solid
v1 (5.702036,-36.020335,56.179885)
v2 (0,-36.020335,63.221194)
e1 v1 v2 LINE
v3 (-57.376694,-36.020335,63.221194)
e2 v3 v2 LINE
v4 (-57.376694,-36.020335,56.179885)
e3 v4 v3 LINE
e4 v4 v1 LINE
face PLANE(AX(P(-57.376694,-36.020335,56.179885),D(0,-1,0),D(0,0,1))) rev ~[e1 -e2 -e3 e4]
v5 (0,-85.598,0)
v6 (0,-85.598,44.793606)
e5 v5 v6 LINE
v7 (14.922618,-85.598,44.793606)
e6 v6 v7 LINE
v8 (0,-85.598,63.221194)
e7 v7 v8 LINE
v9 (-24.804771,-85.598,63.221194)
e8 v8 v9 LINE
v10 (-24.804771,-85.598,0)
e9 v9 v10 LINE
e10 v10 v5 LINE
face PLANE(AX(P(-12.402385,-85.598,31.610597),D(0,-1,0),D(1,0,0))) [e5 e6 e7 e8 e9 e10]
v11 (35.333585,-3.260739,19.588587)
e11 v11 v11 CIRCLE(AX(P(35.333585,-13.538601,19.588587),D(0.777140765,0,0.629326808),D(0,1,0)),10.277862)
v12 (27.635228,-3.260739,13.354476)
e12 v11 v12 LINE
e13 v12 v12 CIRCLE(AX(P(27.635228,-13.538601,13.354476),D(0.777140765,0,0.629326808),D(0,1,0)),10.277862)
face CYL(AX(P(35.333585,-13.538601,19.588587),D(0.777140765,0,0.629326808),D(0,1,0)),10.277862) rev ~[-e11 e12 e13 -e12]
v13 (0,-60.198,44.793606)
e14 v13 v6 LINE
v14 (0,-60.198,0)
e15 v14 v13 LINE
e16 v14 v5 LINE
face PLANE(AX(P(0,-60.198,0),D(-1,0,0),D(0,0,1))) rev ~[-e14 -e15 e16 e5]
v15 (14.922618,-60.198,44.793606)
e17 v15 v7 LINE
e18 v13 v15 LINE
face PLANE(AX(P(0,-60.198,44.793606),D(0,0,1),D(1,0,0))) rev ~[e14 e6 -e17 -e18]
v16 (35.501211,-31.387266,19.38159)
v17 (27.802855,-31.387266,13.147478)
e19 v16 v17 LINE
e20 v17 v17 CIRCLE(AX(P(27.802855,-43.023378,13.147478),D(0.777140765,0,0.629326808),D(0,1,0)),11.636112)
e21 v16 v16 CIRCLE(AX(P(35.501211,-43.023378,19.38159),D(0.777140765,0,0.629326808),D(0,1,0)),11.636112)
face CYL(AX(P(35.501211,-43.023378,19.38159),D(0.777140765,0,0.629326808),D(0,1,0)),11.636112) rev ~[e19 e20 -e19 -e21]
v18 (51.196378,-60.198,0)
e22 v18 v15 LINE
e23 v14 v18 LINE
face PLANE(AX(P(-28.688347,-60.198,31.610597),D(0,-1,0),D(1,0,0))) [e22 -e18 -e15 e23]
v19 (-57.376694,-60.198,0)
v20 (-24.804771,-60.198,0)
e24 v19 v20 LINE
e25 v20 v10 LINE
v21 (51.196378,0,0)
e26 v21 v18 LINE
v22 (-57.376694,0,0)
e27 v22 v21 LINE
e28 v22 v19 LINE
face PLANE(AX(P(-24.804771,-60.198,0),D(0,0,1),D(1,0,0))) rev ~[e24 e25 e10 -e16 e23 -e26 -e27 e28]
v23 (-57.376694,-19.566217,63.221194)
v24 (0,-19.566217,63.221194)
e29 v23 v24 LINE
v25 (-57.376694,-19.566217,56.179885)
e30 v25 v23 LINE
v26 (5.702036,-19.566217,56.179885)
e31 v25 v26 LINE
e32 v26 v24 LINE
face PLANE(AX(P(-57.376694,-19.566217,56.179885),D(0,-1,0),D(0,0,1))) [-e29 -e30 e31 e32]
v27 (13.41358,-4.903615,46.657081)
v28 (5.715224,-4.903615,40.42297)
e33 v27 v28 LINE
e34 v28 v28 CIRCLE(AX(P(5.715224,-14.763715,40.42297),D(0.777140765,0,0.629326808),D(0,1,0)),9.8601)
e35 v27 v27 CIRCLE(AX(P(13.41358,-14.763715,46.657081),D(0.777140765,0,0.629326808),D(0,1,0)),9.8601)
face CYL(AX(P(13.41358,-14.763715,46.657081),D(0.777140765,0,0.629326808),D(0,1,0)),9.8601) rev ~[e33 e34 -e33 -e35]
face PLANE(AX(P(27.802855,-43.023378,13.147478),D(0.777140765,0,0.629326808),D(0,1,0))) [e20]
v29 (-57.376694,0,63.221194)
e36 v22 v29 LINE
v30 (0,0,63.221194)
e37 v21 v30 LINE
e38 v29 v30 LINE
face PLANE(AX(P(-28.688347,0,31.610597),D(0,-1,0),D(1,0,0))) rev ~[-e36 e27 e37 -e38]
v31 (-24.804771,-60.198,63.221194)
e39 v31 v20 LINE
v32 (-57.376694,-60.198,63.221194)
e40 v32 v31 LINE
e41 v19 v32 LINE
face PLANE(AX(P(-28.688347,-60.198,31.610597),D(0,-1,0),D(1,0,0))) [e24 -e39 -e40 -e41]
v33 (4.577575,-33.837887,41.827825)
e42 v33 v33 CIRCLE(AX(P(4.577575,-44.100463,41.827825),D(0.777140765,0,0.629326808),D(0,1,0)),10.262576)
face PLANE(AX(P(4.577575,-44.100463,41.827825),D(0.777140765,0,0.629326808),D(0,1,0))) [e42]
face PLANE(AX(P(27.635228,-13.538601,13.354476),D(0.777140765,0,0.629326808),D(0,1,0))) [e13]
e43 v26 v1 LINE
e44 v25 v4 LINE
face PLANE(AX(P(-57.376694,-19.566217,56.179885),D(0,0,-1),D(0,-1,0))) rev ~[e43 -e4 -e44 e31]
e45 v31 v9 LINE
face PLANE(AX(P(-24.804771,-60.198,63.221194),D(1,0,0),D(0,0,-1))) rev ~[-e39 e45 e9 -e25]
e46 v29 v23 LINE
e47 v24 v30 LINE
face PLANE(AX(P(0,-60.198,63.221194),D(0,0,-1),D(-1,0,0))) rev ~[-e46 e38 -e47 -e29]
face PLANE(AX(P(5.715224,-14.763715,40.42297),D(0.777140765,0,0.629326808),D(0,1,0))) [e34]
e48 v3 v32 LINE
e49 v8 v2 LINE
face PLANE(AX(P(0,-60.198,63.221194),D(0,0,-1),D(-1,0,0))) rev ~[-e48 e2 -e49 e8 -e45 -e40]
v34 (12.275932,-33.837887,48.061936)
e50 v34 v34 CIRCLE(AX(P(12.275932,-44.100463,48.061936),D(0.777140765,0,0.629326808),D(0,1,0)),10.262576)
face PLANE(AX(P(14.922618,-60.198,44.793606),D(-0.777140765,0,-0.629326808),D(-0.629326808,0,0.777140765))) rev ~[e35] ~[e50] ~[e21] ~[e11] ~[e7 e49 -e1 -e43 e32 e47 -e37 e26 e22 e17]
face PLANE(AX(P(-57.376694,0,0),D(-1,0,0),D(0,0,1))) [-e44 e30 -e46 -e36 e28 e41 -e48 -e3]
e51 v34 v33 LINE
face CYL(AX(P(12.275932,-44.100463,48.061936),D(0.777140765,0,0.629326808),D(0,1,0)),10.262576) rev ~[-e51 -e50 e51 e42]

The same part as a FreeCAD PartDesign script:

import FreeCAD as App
import Part
import Sketcher
Q = App.Units.Quantity


def add_polygon(sketch, points):
    """Adds a closed chain of lines whose ends are joined by coincident constraints."""
    first, n = sketch.GeometryCount, len(points)
    for a, b in zip(points, points[1:] + points[:1]):
        sketch.addGeometry(Part.LineSegment(App.Vector(*a, 0), App.Vector(*b, 0)), False)
    for i in range(n):
        sketch.addConstraint(Sketcher.Constraint("Coincident", first + i, 2, first + (i + 1) % n, 1))

doc = App.newDocument("Part")
params = doc.addObject("Spreadsheet::Sheet", "Params")
for row, (alias, value) in enumerate([
    ("pad1_length", "2.37 in"),
    ("pocket1_length", "0.39 in"),
    ("pad2_length", "1 in"),
    ("pocket2_length", "8.2 in"),
], start=1):
    params.set(f"A{row}", alias)
    params.set(f"B{row}", "=" + value)
    params.setAlias(f"B{row}", alias)

body = doc.addObject("PartDesign::Body", "Body")

sketch1 = doc.addObject("Sketcher::SketchObject", "Sketch")
body.addObject(sketch1)
sketch1.AttachmentSupport = (doc.XZ_Plane, [""])
sketch1.MapMode = "FlatFace"
add_polygon(sketch1, [(-57, 63), (-57, 0), (51, 0), (0, 63)])
sketch1.addConstraint([
    Sketcher.Constraint("Vertical", 0),
    Sketcher.Constraint("Horizontal", 1),
    Sketcher.Constraint("Horizontal", 3),
    Sketcher.Constraint("PointOnObject", 0, 2, -1),
    Sketcher.Constraint("PointOnObject", 2, 2, -2),
    Sketcher.Constraint("DistanceX", 1, 1, 1, 2, Q("108.573072 mm")),
    Sketcher.Constraint("Distance", 2, Q("81.35102 mm")),
    Sketcher.Constraint("DistanceX", 3, 2, 3, 1, Q("57.376694 mm")),
])
pad1 = doc.addObject("PartDesign::Pad", "Pad")
body.addObject(pad1)
pad1.Profile = sketch1
pad1.setExpression("Length", "Params.pad1_length")

sketch2 = doc.addObject("Sketcher::SketchObject", "Sketch001")
body.addObject(sketch2)
sketch2.Placement = App.Placement(App.Vector(30.919938, 0, 25.038895), App.Rotation(App.Vector(0, 1, 0), App.Vector(-0.629326808, 0, 0.777140765), App.Vector(0.777140765, 0, 0.629326808), "ZXY"))
sketch2.addGeometry([
    Part.Circle(App.Vector(-44, 30, 0), App.Vector(0, 0, 1), 10),
    Part.Circle(App.Vector(-15, 28, 0), App.Vector(0, 0, 1), 10),
    Part.Circle(App.Vector(-14, -7, 0), App.Vector(0, 0, 1), 10),
    Part.Circle(App.Vector(-43, -7, 0), App.Vector(0, 0, 1), 12),
], False)
sketch2.addConstraint([
    Sketcher.Constraint("Diameter", 1, Q("19.720199 mm")),
    Sketcher.Constraint("Diameter", 0, Q("20.525153 mm")),
    Sketcher.Constraint("Diameter", 2, Q("20.555723 mm")),
    Sketcher.Constraint("Diameter", 3, Q("23.272224 mm")),
    Sketcher.Constraint("DistanceY", 3, 3, -1, 1, Q("0.2866 in")),
    Sketcher.Constraint("DistanceX", 2, 3, -1, 1, Q("13.538601 mm")),
    Sketcher.Constraint("DistanceY", 2, 3, 0, 3, Q("36.638599 mm")),
    Sketcher.Constraint("DistanceX", 0, 3, 1, 3, Q("29.336749 mm")),
    Sketcher.Constraint("DistanceY", 3, 3, 2, 3, Q("0.266358 mm")),
    Sketcher.Constraint("DistanceX", 0, 3, -1, 1, Q("44.100463 mm")),
    Sketcher.Constraint("DistanceY", -1, 1, 1, 3, Q("27.817594 mm")),
    Sketcher.Constraint("DistanceX", 3, 3, -1, 1, Q("43.023378 mm")),
])
pocket1 = doc.addObject("PartDesign::Pocket", "Pocket")
body.addObject(pocket1)
pocket1.Profile = sketch2
pocket1.setExpression("Length", "Params.pocket1_length")

sketch3 = doc.addObject("Sketcher::SketchObject", "Sketch002")
body.addObject(sketch3)
sketch3.AttachmentSupport = (doc.XZ_Plane, [""])
sketch3.MapMode = "FlatFace"
sketch3.AttachmentOffset = App.Placement(App.Vector(0, 0, 2.37 * 25.4), App.Rotation())
add_polygon(sketch3, [(0, 63), (-25, 63), (-25, 0), (0, 0), (0, 45), (15, 45)])
sketch3.addConstraint([
    Sketcher.Constraint("Horizontal", 0),
    Sketcher.Constraint("Vertical", 1),
    Sketcher.Constraint("Horizontal", 2),
    Sketcher.Constraint("Vertical", 3),
    Sketcher.Constraint("Horizontal", 4),
    Sketcher.Constraint("Coincident", 2, 2, -1, 1),
    Sketcher.Constraint("PointOnObject", 5, 2, -2),
    Sketcher.Constraint("DistanceX", 0, 2, 0, 1, Q("24.804771 mm")),
    Sketcher.Constraint("DistanceX", 4, 1, 4, 2, Q("14.922618 mm")),
    Sketcher.Constraint("DistanceY", 1, 2, 1, 1, Q("63.221194 mm")),
    Sketcher.Constraint("DistanceY", 3, 1, 3, 2, Q("44.793606 mm")),
])
pad2 = doc.addObject("PartDesign::Pad", "Pad001")
body.addObject(pad2)
pad2.Profile = sketch3
pad2.setExpression("Length", "Params.pad2_length")

sketch4 = doc.addObject("Sketcher::SketchObject", "Sketch003")
body.addObject(sketch4)
sketch4.AttachmentSupport = (doc.YZ_Plane, [""])
sketch4.MapMode = "FlatFace"
sketch4.AttachmentOffset = App.Placement(App.Vector(0, 0, -57.376694), App.Rotation())
add_polygon(sketch4, [(-20, 63), (-20, 56), (-36, 56), (-36, 63)])
sketch4.addConstraint([
    Sketcher.Constraint("Vertical", 0),
    Sketcher.Constraint("Horizontal", 1),
    Sketcher.Constraint("Vertical", 2),
    Sketcher.Constraint("Horizontal", 3),
    Sketcher.Constraint("DistanceX", 1, 2, 1, 1, Q("0.6477999 in")),
    Sketcher.Constraint("DistanceY", 0, 2, 0, 1, Q("7.041309 mm")),
    Sketcher.Constraint("DistanceX", 0, 2, -1, 1, Q("19.566217 mm")),
    Sketcher.Constraint("DistanceY", -1, 1, 0, 2, Q("56.179885 mm")),
])
pocket2 = doc.addObject("PartDesign::Pocket", "Pocket001")
body.addObject(pocket2)
pocket2.Profile = sketch4
pocket2.setExpression("Length", "Params.pocket2_length")
pocket2.Reversed = True

doc.recompute()
